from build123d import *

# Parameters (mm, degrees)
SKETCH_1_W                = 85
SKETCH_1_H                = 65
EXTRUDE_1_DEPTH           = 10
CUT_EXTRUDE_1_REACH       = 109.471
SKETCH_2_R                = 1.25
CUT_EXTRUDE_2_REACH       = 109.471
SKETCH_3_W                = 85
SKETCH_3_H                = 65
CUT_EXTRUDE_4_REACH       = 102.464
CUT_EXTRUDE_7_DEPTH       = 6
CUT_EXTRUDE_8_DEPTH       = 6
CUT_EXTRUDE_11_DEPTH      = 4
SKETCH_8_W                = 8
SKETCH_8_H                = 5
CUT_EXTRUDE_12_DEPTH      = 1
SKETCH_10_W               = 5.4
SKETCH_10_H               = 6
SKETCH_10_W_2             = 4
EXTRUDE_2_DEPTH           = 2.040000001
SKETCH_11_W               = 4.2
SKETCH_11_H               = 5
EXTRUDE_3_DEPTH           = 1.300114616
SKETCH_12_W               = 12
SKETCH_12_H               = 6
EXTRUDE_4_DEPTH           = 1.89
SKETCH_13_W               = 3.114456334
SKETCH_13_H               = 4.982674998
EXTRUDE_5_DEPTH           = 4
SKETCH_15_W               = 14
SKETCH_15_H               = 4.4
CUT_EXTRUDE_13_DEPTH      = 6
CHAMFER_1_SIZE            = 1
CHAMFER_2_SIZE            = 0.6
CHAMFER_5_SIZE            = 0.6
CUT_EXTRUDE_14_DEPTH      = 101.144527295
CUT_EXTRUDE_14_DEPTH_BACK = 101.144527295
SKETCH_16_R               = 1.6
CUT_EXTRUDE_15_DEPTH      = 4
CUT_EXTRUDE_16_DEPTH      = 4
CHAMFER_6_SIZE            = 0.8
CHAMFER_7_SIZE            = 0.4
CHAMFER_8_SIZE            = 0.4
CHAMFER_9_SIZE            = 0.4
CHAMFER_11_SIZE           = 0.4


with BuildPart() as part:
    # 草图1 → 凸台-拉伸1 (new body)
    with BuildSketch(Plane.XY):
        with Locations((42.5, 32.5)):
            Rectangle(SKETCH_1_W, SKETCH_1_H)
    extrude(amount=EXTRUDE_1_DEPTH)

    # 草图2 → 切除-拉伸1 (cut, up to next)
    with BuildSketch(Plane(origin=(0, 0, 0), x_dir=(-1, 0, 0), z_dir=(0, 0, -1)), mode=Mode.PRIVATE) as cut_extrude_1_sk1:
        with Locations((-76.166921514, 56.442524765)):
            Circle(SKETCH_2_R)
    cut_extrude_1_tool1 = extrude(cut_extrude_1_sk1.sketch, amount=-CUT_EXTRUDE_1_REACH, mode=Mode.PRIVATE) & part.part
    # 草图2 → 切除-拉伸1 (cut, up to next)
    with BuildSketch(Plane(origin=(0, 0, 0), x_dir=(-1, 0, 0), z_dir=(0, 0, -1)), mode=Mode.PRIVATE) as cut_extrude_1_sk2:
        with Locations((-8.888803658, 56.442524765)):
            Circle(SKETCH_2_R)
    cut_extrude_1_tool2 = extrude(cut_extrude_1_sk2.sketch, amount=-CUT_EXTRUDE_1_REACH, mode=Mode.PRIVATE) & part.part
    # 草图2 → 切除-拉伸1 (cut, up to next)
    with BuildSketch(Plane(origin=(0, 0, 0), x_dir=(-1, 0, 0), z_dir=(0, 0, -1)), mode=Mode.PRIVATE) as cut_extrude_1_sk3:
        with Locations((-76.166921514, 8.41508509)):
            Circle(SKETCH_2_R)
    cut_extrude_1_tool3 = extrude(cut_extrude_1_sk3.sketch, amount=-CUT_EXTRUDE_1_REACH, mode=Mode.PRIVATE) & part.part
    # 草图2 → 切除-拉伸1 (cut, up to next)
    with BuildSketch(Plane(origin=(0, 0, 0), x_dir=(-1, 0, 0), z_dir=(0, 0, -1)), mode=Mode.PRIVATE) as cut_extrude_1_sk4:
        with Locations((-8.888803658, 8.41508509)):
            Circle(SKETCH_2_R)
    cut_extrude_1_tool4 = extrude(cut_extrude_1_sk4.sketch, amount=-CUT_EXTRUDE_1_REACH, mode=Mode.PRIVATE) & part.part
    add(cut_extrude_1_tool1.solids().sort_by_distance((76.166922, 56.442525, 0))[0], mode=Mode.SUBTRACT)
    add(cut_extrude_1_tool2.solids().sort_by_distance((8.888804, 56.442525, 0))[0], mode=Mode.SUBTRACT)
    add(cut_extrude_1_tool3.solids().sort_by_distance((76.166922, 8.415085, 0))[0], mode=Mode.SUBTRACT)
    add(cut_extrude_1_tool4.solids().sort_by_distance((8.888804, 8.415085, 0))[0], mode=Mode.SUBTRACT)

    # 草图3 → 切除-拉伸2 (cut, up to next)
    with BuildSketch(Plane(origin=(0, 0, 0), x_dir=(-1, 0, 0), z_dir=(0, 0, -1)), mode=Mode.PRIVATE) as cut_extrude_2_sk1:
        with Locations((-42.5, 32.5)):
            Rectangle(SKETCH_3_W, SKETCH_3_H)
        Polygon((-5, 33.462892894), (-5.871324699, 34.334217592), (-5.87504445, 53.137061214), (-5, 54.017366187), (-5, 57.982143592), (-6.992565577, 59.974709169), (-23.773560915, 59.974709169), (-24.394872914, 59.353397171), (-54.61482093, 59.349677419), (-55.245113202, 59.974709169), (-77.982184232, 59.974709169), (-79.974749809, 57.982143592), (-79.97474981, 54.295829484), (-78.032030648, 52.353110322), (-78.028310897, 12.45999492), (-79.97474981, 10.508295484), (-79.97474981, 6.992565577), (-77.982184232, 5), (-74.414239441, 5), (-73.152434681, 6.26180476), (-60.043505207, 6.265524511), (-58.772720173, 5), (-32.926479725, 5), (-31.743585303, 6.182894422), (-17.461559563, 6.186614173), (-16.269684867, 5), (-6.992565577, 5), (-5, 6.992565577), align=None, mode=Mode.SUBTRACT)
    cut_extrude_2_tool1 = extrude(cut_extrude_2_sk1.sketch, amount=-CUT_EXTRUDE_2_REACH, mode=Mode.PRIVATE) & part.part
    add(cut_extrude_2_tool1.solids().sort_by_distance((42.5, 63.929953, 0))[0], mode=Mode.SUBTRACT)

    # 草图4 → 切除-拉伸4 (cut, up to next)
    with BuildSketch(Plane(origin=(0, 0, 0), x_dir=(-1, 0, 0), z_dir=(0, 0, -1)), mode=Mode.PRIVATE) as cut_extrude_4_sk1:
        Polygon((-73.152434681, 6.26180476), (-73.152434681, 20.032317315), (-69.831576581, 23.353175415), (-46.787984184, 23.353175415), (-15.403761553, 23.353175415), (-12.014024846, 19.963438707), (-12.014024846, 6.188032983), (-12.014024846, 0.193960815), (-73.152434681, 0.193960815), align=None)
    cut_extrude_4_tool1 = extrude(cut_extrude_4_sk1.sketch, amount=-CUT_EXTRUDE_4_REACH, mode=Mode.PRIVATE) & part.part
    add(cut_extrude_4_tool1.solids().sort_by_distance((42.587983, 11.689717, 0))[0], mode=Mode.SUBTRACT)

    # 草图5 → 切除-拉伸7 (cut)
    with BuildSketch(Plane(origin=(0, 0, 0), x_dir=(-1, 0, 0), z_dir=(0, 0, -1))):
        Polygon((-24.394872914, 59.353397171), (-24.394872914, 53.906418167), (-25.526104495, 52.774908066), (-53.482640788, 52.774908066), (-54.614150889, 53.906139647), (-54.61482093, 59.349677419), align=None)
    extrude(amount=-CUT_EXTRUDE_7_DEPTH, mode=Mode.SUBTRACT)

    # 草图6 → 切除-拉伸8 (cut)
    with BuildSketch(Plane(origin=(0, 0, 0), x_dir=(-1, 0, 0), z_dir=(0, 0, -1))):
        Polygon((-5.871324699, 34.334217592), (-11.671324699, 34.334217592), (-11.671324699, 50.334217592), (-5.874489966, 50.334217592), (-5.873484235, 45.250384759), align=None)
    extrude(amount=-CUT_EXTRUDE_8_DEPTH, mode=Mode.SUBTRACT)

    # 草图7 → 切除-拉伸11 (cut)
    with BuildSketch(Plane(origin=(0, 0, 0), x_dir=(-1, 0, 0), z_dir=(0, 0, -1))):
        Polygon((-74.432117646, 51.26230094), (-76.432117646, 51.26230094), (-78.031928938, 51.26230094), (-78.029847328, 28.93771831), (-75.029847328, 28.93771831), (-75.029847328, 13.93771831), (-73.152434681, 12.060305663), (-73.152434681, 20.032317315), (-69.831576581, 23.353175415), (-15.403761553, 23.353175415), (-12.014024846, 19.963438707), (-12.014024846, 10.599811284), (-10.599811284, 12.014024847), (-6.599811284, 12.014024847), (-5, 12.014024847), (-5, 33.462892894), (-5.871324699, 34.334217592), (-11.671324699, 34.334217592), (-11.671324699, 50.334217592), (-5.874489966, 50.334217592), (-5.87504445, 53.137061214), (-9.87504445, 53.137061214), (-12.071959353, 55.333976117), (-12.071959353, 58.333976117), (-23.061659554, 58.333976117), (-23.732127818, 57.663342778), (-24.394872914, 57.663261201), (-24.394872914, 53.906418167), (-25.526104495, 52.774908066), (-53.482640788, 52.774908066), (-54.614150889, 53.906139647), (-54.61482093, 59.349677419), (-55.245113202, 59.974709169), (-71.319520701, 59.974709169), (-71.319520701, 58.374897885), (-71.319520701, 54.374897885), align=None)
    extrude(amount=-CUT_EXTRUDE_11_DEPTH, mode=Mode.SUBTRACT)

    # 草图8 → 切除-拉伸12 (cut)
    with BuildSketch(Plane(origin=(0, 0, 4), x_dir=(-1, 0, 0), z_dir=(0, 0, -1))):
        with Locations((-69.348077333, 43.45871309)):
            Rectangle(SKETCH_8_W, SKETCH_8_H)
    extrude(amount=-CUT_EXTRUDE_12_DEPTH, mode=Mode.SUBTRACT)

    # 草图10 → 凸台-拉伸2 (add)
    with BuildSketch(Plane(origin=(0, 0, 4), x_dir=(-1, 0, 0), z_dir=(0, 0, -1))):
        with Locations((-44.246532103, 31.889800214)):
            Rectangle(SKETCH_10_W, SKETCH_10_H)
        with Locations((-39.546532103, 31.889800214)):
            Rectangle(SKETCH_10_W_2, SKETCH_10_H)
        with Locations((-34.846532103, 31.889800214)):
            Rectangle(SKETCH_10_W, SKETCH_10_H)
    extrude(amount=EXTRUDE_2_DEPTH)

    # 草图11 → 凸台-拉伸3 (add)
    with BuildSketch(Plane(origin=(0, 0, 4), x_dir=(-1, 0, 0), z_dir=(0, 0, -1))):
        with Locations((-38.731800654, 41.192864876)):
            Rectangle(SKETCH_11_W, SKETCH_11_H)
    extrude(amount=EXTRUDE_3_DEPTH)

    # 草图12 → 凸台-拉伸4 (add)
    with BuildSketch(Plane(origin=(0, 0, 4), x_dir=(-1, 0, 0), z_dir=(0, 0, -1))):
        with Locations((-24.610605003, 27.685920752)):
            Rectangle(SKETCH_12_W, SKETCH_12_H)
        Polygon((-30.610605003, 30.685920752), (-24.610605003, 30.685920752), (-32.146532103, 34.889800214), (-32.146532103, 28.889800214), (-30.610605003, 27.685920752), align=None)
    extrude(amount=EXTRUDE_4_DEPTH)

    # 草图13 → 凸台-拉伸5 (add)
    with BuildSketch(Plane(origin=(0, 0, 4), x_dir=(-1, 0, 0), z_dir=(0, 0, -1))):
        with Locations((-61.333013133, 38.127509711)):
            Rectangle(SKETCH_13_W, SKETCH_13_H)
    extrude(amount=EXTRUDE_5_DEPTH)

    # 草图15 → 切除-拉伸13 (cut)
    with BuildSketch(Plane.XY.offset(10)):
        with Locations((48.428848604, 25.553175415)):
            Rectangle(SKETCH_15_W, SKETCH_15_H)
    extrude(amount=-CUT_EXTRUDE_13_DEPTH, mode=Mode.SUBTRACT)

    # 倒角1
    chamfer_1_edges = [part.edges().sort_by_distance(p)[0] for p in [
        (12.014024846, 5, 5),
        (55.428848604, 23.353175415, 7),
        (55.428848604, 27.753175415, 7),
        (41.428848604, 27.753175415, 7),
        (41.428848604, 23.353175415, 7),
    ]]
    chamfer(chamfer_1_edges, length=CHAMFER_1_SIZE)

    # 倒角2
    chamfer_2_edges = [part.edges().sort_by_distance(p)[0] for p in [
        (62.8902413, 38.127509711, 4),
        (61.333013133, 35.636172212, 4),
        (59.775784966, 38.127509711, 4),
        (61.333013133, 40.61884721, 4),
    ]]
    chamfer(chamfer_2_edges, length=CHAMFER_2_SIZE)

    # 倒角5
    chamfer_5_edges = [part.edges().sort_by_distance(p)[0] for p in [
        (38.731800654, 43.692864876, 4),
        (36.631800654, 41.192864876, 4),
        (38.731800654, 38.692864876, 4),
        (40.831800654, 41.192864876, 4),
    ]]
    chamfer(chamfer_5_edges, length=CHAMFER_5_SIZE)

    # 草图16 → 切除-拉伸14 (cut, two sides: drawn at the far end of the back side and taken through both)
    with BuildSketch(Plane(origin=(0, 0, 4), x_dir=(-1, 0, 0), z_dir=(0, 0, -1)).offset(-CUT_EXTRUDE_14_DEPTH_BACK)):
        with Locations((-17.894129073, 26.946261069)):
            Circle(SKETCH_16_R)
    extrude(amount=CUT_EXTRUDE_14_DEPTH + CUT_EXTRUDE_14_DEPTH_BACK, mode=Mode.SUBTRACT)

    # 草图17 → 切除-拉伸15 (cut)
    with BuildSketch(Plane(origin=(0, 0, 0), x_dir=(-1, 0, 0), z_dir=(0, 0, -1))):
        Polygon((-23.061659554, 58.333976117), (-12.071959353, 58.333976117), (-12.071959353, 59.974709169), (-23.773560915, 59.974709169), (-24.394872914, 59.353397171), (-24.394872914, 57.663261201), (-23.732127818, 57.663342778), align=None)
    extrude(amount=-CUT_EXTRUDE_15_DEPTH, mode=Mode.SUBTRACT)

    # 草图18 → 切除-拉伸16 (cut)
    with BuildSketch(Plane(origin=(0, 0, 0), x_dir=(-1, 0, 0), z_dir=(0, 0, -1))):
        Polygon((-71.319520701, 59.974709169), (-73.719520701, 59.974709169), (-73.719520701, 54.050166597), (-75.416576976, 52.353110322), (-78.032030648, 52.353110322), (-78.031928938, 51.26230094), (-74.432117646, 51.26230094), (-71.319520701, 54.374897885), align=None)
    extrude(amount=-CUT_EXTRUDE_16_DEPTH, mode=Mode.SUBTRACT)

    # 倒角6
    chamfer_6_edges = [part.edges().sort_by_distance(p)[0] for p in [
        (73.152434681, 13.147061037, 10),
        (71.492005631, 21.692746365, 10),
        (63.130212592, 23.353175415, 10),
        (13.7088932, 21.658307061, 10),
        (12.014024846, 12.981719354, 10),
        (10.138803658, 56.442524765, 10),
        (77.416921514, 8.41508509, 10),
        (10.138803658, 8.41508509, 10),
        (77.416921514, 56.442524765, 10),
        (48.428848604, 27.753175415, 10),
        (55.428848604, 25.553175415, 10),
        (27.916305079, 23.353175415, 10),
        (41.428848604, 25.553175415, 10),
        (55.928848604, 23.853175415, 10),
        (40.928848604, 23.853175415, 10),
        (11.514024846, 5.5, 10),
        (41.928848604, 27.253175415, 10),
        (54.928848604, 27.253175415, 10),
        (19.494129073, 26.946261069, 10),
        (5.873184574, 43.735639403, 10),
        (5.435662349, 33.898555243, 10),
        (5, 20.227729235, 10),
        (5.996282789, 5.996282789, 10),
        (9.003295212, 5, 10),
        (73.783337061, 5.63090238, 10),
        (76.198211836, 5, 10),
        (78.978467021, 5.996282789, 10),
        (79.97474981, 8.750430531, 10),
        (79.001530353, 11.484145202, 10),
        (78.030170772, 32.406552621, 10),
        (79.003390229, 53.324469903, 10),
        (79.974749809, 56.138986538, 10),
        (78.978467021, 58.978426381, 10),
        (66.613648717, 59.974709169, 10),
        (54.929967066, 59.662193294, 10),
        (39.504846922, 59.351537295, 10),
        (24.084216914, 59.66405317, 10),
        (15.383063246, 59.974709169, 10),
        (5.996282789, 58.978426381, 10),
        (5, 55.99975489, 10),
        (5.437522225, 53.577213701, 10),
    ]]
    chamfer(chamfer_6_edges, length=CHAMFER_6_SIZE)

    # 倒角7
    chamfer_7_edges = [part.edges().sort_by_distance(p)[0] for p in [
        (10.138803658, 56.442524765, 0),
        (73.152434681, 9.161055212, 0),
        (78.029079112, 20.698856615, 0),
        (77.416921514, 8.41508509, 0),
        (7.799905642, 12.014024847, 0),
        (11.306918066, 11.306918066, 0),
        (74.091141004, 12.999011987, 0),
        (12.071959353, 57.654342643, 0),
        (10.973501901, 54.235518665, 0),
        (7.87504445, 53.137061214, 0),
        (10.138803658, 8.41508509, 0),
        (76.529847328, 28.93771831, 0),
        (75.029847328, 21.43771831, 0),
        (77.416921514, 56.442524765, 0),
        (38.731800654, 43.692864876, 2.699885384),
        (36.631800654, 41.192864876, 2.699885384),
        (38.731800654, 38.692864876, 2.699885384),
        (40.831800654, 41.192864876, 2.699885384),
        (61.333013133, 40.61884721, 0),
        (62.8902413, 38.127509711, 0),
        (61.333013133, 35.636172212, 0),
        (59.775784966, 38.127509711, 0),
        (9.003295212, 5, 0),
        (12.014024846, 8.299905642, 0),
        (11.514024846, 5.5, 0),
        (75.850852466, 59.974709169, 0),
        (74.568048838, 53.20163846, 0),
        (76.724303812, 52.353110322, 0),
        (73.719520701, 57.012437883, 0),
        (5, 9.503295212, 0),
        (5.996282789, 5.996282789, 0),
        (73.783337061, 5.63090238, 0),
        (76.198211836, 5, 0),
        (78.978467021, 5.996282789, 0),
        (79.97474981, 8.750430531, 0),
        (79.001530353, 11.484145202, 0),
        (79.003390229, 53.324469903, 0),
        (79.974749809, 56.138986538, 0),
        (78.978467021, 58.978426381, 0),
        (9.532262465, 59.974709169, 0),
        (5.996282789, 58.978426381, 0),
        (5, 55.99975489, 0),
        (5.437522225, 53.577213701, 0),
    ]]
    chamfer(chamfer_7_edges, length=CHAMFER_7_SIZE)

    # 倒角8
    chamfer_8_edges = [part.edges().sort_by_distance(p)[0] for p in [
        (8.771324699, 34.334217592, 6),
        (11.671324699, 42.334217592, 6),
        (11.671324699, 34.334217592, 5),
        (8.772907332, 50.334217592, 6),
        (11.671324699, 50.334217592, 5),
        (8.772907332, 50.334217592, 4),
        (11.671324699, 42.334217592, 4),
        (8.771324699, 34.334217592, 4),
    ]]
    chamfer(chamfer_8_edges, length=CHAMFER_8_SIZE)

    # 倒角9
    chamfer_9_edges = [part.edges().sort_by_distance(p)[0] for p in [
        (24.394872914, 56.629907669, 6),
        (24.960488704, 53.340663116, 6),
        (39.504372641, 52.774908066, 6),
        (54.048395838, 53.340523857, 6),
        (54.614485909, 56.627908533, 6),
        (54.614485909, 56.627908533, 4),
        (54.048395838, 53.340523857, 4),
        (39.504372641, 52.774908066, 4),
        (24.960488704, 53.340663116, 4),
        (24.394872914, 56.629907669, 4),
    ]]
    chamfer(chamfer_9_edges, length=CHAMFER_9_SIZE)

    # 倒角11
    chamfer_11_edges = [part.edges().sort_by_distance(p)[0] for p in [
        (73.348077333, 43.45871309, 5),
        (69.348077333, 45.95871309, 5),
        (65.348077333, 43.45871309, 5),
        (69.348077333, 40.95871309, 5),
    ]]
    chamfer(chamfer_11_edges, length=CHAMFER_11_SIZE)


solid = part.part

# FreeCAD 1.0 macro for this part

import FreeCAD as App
import Part
import Sketcher
Q = App.Units.Quantity


def edges_at(feature, points):
    """Names of the edges that pass closest to the given points."""
    edges = feature.Shape.Edges
    near = lambda p: min(range(len(edges)), key=lambda i: edges[i].distToShape(Part.Vertex(*p))[0])
    return sorted({f"Edge{near(p) + 1}" for p in points})


def add_polygon(sketch, points):
    """Adds a closed chain of lines whose ends are joined by coincident constraints."""
    first, n = sketch.GeometryCount, len(points)
    for a, b in zip(points, points[1:] + points[:1]):
        sketch.addGeometry(Part.LineSegment(App.Vector(*a, 0), App.Vector(*b, 0)), False)
    for i in range(n):
        sketch.addConstraint(Sketcher.Constraint("Coincident", first + i, 2, first + (i + 1) % n, 1))

doc = App.newDocument("Part")
body = doc.addObject("PartDesign::Body", "Body")

# Sketch on XY plane
sketch1 = body.newObject("Sketcher::SketchObject", "Sketch")
sketch1.AttachmentSupport = (doc.getObject("XY_Plane"), [""])
sketch1.MapMode = "FlatFace"
add_polygon(sketch1, [(0, 65), (0, 0), (85, 0), (85, 65)])  # lines 0-3
sketch1.addConstraint(Sketcher.Constraint("Vertical", 0))
sketch1.addConstraint(Sketcher.Constraint("Horizontal", 1))
sketch1.addConstraint(Sketcher.Constraint("Vertical", 2))
sketch1.addConstraint(Sketcher.Constraint("Horizontal", 3))
sketch1.addConstraint(Sketcher.Constraint("Coincident", 0, 2, -1, 1))
sketch1.addConstraint(Sketcher.Constraint("DistanceX", 1, 1, 1, 2, Q("85 mm")))
sketch1.addConstraint(Sketcher.Constraint("DistanceY", 0, 2, 0, 1, Q("65 mm")))
pad1 = body.newObject("PartDesign::Pad", "Pad")
pad1.Profile = sketch1
pad1.Length = 10

# Sketch on XY plane
sketch2 = body.newObject("Sketcher::SketchObject", "Sketch001")
sketch2.AttachmentSupport = (doc.getObject("XY_Plane"), [""])
sketch2.MapMode = "FlatFace"
sketch2.addGeometry(Part.Circle(App.Vector(76.2, 56.4, 0), App.Vector(0, 0, 1), 1.2), False)
sketch2.addConstraint(Sketcher.Constraint("Diameter", 0, Q("2.5 mm")))
sketch2.addConstraint(Sketcher.Constraint("DistanceX", -1, 1, 0, 3, Q("76.166922 mm")))
sketch2.addConstraint(Sketcher.Constraint("DistanceY", -1, 1, 0, 3, Q("56.442525 mm")))
pocket1 = body.newObject("PartDesign::Pocket", "Pocket")
pocket1.Profile = sketch2
pocket1.Type = "UpToFirst"
pocket1.Reversed = True

# Sketch on XY plane
sketch3 = body.newObject("Sketcher::SketchObject", "Sketch002")
sketch3.AttachmentSupport = (doc.getObject("XY_Plane"), [""])
sketch3.MapMode = "FlatFace"
sketch3.addGeometry(Part.Circle(App.Vector(8.9, 56.4, 0), App.Vector(0, 0, 1), 1.2), False)
sketch3.addConstraint(Sketcher.Constraint("Diameter", 0, Q("2.5 mm")))
sketch3.addConstraint(Sketcher.Constraint("DistanceX", -1, 1, 0, 3, Q("8.888804 mm")))
sketch3.addConstraint(Sketcher.Constraint("DistanceY", -1, 1, 0, 3, Q("56.442525 mm")))
pocket2 = body.newObject("PartDesign::Pocket", "Pocket001")
pocket2.Profile = sketch3
pocket2.Type = "UpToFirst"
pocket2.Reversed = True

# Sketch on XY plane
sketch4 = body.newObject("Sketcher::SketchObject", "Sketch003")
sketch4.AttachmentSupport = (doc.getObject("XY_Plane"), [""])
sketch4.MapMode = "FlatFace"
sketch4.addGeometry(Part.Circle(App.Vector(76.2, 8.4, 0), App.Vector(0, 0, 1), 1.2), False)
sketch4.addConstraint(Sketcher.Constraint("Diameter", 0, Q("2.5 mm")))
sketch4.addConstraint(Sketcher.Constraint("DistanceX", -1, 1, 0, 3, Q("76.166922 mm")))
sketch4.addConstraint(Sketcher.Constraint("DistanceY", -1, 1, 0, 3, Q("8.415085 mm")))
pocket3 = body.newObject("PartDesign::Pocket", "Pocket002")
pocket3.Profile = sketch4
pocket3.Type = "UpToFirst"
pocket3.Reversed = True

# Sketch on XY plane
sketch5 = body.newObject("Sketcher::SketchObject", "Sketch004")
sketch5.AttachmentSupport = (doc.getObject("XY_Plane"), [""])
sketch5.MapMode = "FlatFace"
sketch5.addGeometry(Part.Circle(App.Vector(8.9, 8.4, 0), App.Vector(0, 0, 1), 1.2), False)
sketch5.addConstraint(Sketcher.Constraint("Diameter", 0, Q("2.5 mm")))
sketch5.addConstraint(Sketcher.Constraint("DistanceX", -1, 1, 0, 3, Q("8.888804 mm")))
sketch5.addConstraint(Sketcher.Constraint("DistanceY", -1, 1, 0, 3, Q("8.415085 mm")))
pocket4 = body.newObject("PartDesign::Pocket", "Pocket003")
pocket4.Profile = sketch5
pocket4.Type = "UpToFirst"
pocket4.Reversed = True

# Sketch on XY plane
sketch6 = body.newObject("Sketcher::SketchObject", "Sketch005")
sketch6.AttachmentSupport = (doc.getObject("XY_Plane"), [""])
sketch6.MapMode = "FlatFace"
add_polygon(sketch6, [(85, 65), (85, 0), (0, 0), (0, 65)])  # lines 0-3
add_polygon(sketch6, [(5.9, 34.3), (5, 33.5), (5, 7), (7, 5), (16.3, 5), (17.5, 6.2), (31.7, 6.2), (32.9, 5), (58.8, 5), (60, 6.3), (73.2, 6.3), (74.4, 5), (78, 5), (80, 7), (80, 10.5), (78, 12.5), (78, 52.4), (80, 54.3), (80, 58), (78, 60), (55.2, 60), (54.6, 59.3), (24.4, 59.4), (23.8, 60), (7, 60), (5, 58), (5, 54), (5.9, 53.1)])  # lines 4-31
sketch6.addConstraint(Sketcher.Constraint("Vertical", 0))
sketch6.addConstraint(Sketcher.Constraint("Horizontal", 1))
sketch6.addConstraint(Sketcher.Constraint("Vertical", 2))
sketch6.addConstraint(Sketcher.Constraint("Horizontal", 3))
sketch6.addConstraint(Sketcher.Constraint("Vertical", 5))
sketch6.addConstraint(Sketcher.Constraint("Horizontal", 7))
sketch6.addConstraint(Sketcher.Constraint("Horizontal", 11))
sketch6.addConstraint(Sketcher.Constraint("Horizontal", 15))
sketch6.addConstraint(Sketcher.Constraint("Vertical", 17))
sketch6.addConstraint(Sketcher.Constraint("Vertical", 21))
sketch6.addConstraint(Sketcher.Constraint("Horizontal", 23))
sketch6.addConstraint(Sketcher.Constraint("Horizontal", 27))
sketch6.addConstraint(Sketcher.Constraint("Vertical", 29))
sketch6.addConstraint(Sketcher.Constraint("Coincident", 1, 2, -1, 1))
sketch6.addConstraint(Sketcher.Constraint("Perpendicular", 4, 6))
sketch6.addConstraint(Sketcher.Constraint("Parallel", 6, 10))
sketch6.addConstraint(Sketcher.Constraint("Parallel", 10, 14))
sketch6.addConstraint(Sketcher.Constraint("Perpendicular", 14, 16))
sketch6.addConstraint(Sketcher.Constraint("Parallel", 16, 20))
sketch6.addConstraint(Sketcher.Constraint("Perpendicular", 20, 22))
sketch6.addConstraint(Sketcher.Constraint("Parallel", 22, 26))
sketch6.addConstraint(Sketcher.Constraint("Perpendicular", 26, 28))
sketch6.addConstraint(Sketcher.Constraint("Horizontal", 7, 2, 10, 2))
sketch6.addConstraint(Sketcher.Constraint("Horizontal", 11, 2, 14, 2))
sketch6.addConstraint(Sketcher.Constraint("Horizontal", 5, 2, 16, 2))
sketch6.addConstraint(Sketcher.Constraint("Horizontal", 23, 2, 26, 2))
sketch6.addConstraint(Sketcher.Constraint("Horizontal", 21, 2, 28, 2))
sketch6.addConstraint(Sketcher.Constraint("Vertical", 17, 2, 20, 2))
sketch6.addConstraint(Sketcher.Constraint("Vertical", 15, 2, 22, 2))
sketch6.addConstraint(Sketcher.Constraint("Vertical", 6, 2, 27, 2))
sketch6.addConstraint(Sketcher.Constraint("Vertical", 5, 2, 28, 2))
sketch6.addConstraint(Sketcher.Constraint("DistanceX", 1, 2, 1, 1, Q("85 mm")))
sketch6.addConstraint(Sketcher.Constraint("DistanceY", 0, 2, 0, 1, Q("65 mm")))
sketch6.addConstraint(Sketcher.Constraint("DistanceX", -1, 1, 4, 2, Q("5 mm")))
sketch6.addConstraint(Sketcher.Constraint("DistanceY", -1, 1, 6, 2, Q("5 mm")))
sketch6.addConstraint(Sketcher.Constraint("DistanceX", 7, 1, 7, 2, Q("9.277119 mm")))
sketch6.addConstraint(Sketcher.Constraint("DistanceX", 11, 1, 11, 2, Q("25.84624 mm")))
sketch6.addConstraint(Sketcher.Constraint("DistanceX", 23, 2, 23, 1, Q("22.737071 mm")))
sketch6.addConstraint(Sketcher.Constraint("DistanceY", 17, 1, 17, 2, Q("3.51573 mm")))
sketch6.addConstraint(Sketcher.Constraint("DistanceX", 7, 2, 9, 2, Q("15.4739 mm")))
sketch6.addConstraint(Sketcher.Constraint("DistanceY", 17, 2, 18, 2, Q("1.951699 mm")))
sketch6.addConstraint(Sketcher.Constraint("DistanceY", 19, 2, 22, 2, Q("7.621599 mm")))
sketch6.addConstraint(Sketcher.Constraint("Distance", 4, Q("1.232239 mm")))
sketch6.addConstraint(Sketcher.Constraint("Distance", 8, Q("1.68185 mm")))
sketch6.addConstraint(Sketcher.Constraint("Distance", 13, Q("13.10893 mm")))
sketch6.addConstraint(Sketcher.Constraint("Distance", 14, Q("1.784461 mm")))
sketch6.addConstraint(Sketcher.Constraint("Distance", 20, Q("2.74742 mm")))
sketch6.addConstraint(Sketcher.Constraint("Distance", 25, Q("30.219948 mm")))
sketch6.addConstraint(Sketcher.Constraint("DistanceX", 15, 1, 15, 2, Q("3.567945 mm")))
sketch6.addConstraint(Sketcher.Constraint("DistanceX", 27, 2, 27, 1, Q("16.780995 mm")))
sketch6.addConstraint(Sketcher.Constraint("DistanceY", 5, 2, 5, 1, Q("26.470327 mm")))
sketch6.addConstraint(Sketcher.Constraint("DistanceY", 21, 1, 21, 2, Q("3.686314 mm")))
sketch6.addConstraint(Sketcher.Constraint("DistanceY", 29, 2, 29, 1, Q("3.964777 mm")))
sketch6.addConstraint(Sketcher.Constraint("DistanceX", -1, 1, 8, 2, Q("17.46156 mm")))
sketch6.addConstraint(Sketcher.Constraint("DistanceX", -1, 1, 10, 2, Q("32.92648 mm")))
sketch6.addConstraint(Sketcher.Constraint("DistanceX", -1, 1, 14, 2, Q("74.414239 mm")))
sketch6.addConstraint(Sketcher.Constraint("DistanceX", -1, 1, 18, 2, Q("78.028311 mm")))
sketch6.addConstraint(Sketcher.Constraint("DistanceY", -1, 1, 19, 2, Q("52.35311 mm")))
sketch6.addConstraint(Sketcher.Constraint("DistanceX", -1, 1, 24, 2, Q("54.614821 mm")))
sketch6.addConstraint(Sketcher.Constraint("DistanceY", -1, 1, 30, 2, Q("53.137061 mm")))
sketch6.addConstraint(Sketcher.Constraint("DistanceY", 9, 2, 12, 2, Q("0.08263 mm")))
sketch6.addConstraint(Sketcher.Constraint("DistanceY", 24, 2, 23, 2, Q("0.625032 mm")))
sketch6.addConstraint(Sketcher.Constraint("DistanceX", 30, 2, 27, 2, Q("1.117521 mm")))
pocket5 = body.newObject("PartDesign::Pocket", "Pocket004")
pocket5.Profile = sketch6
pocket5.Type = "UpToFirst"
pocket5.Reversed = True

# Sketch on XY plane
sketch7 = body.newObject("Sketcher::SketchObject", "Sketch006")
sketch7.AttachmentSupport = (doc.getObject("XY_Plane"), [""])
sketch7.MapMode = "FlatFace"
add_polygon(sketch7, [(73.2, 20), (73.2, 0.2), (12, 0.2), (12, 20), (15.4, 23.4), (69.8, 23.4)])  # lines 0-5
sketch7.addConstraint(Sketcher.Constraint("Vertical", 0))
sketch7.addConstraint(Sketcher.Constraint("Horizontal", 1))
sketch7.addConstraint(Sketcher.Constraint("Vertical", 2))
sketch7.addConstraint(Sketcher.Constraint("Horizontal", 4))
sketch7.addConstraint(Sketcher.Constraint("Perpendicular", 3, 5))
sketch7.addConstraint(Sketcher.Constraint("Angle", 3, Q("45 deg")))
sketch7.addConstraint(Sketcher.Constraint("DistanceX", 1, 2, 1, 1, Q("61.13841 mm")))
sketch7.addConstraint(Sketcher.Constraint("Distance", 3, Q("4.793812 mm")))
sketch7.addConstraint(Sketcher.Constraint("DistanceX", 4, 1, 4, 2, Q("54.427815 mm")))
sketch7.addConstraint(Sketcher.Constraint("DistanceY", 0, 2, 0, 1, Q("19.838356 mm")))
sketch7.addConstraint(Sketcher.Constraint("DistanceY", -1, 1, 0, 2, Q("0.193961 mm")))
sketch7.addConstraint(Sketcher.Constraint("DistanceX", -1, 1, 3, 2, Q("15.403762 mm")))
pocket6 = body.newObject("PartDesign::Pocket", "Pocket005")
pocket6.Profile = sketch7
pocket6.Type = "UpToFirst"
pocket6.Reversed = True

# Sketch on XY plane
sketch8 = body.newObject("Sketcher::SketchObject", "Sketch007")
sketch8.AttachmentSupport = (doc.getObject("XY_Plane"), [""])
sketch8.MapMode = "FlatFace"
add_polygon(sketch8, [(24.4, 53.9), (24.4, 59.4), (54.6, 59.3), (54.6, 53.9), (53.5, 52.8), (25.5, 52.8)])  # lines 0-5
sketch8.addConstraint(Sketcher.Constraint("Vertical", 0))
sketch8.addConstraint(Sketcher.Constraint("Horizontal", 4))
sketch8.addConstraint(Sketcher.Constraint("Perpendicular", 1, 2))
sketch8.addConstraint(Sketcher.Constraint("Perpendicular", 3, 5))
sketch8.addConstraint(Sketcher.Constraint("Equal", 3, 5))
sketch8.addConstraint(Sketcher.Constraint("Distance", 3, Q("1.6 mm")))
sketch8.addConstraint(Sketcher.Constraint("DistanceY", 0, 1, 0, 2, Q("5.446979 mm")))
sketch8.addConstraint(Sketcher.Constraint("Distance", 1, Q("30.219948 mm")))
sketch8.addConstraint(Sketcher.Constraint("DistanceX", 4, 2, 4, 1, Q("27.956536 mm")))
sketch8.addConstraint(Sketcher.Constraint("DistanceX", -1, 1, 1, 2, Q("54.614821 mm")))
sketch8.addConstraint(Sketcher.Constraint("DistanceY", -1, 1, 2, 2, Q("53.90614 mm")))
sketch8.addConstraint(Sketcher.Constraint("DistanceX", -1, 1, 3, 2, Q("53.482641 mm")))
pocket7 = body.newObject("PartDesign::Pocket", "Pocket006")
pocket7.Profile = sketch8
pocket7.Length = 6
pocket7.Reversed = True

# Sketch on XY plane
sketch9 = body.newObject("Sketcher::SketchObject", "Sketch008")
sketch9.AttachmentSupport = (doc.getObject("XY_Plane"), [""])
sketch9.MapMode = "FlatFace"
add_polygon(sketch9, [(12, 34), (6, 34), (6, 45), (6, 50), (12, 50)])  # lines 0-4
sketch9.addConstraint(Sketcher.Constraint("Horizontal", 0))
sketch9.addConstraint(Sketcher.Constraint("Horizontal", 3))
sketch9.addConstraint(Sketcher.Constraint("Vertical", 4))
sketch9.addConstraint(Sketcher.Constraint("Parallel", 1, 2))
sketch9.addConstraint(Sketcher.Constraint("DistanceY", 4, 2, 4, 1, Q("16 mm")))
sketch9.addConstraint(Sketcher.Constraint("DistanceX", 0, 2, 0, 1, Q("5.8 mm")))
sketch9.addConstraint(Sketcher.Constraint("DistanceX", 3, 1, 3, 2, Q("5.796835 mm")))
sketch9.addConstraint(Sketcher.Constraint("DistanceX", -1, 1, 2, 2, Q("5.87449 mm")))
sketch9.addConstraint(Sketcher.Constraint("Distance", 1, Q("10.916167 mm")))
sketch9.addConstraint(Sketcher.Constraint("DistanceY", -1, 1, 0, 2, Q("34.334218 mm")))
pocket8 = body.newObject("PartDesign::Pocket", "Pocket007")
pocket8.Profile = sketch9
pocket8.Length = 6
pocket8.Reversed = True

# Sketch on XY plane
sketch10 = body.newObject("Sketcher::SketchObject", "Sketch009")
sketch10.AttachmentSupport = (doc.getObject("XY_Plane"), [""])
sketch10.MapMode = "FlatFace"
add_polygon(sketch10, [(74.4, 51.3), (78, 51.3), (78, 28.9), (75, 28.9), (75, 13.9), (73.2, 12.1), (73.2, 20), (69.8, 23.4), (15.4, 23.4), (12, 20), (12, 10.6), (10.6, 12), (5, 12), (5, 33.5), (5.9, 34.3), (11.7, 34.3), (11.7, 50.3), (5.9, 50.3), (5.9, 53.1), (9.9, 53.1), (12.1, 55.3), (12.1, 58.3), (23.1, 58.3), (23.7, 57.7), (24.4, 57.7), (24.4, 53.9), (25.5, 52.8), (53.5, 52.8), (54.6, 53.9), (54.6, 59.3), (55.2, 60), (71.3, 60), (71.3, 54.4)])  # lines 0-32
sketch10.addConstraint(Sketcher.Constraint("Horizontal", 0))
sketch10.addConstraint(Sketcher.Constraint("Horizontal", 2))
sketch10.addConstraint(Sketcher.Constraint("Vertical", 3))
sketch10.addConstraint(Sketcher.Constraint("Vertical", 5))
sketch10.addConstraint(Sketcher.Constraint("Horizontal", 7))
sketch10.addConstraint(Sketcher.Constraint("Vertical", 9))
sketch10.addConstraint(Sketcher.Constraint("Horizontal", 11))
sketch10.addConstraint(Sketcher.Constraint("Vertical", 12))
sketch10.addConstraint(Sketcher.Constraint("Horizontal", 14))
sketch10.addConstraint(Sketcher.Constraint("Vertical", 15))
sketch10.addConstraint(Sketcher.Constraint("Horizontal", 16))
sketch10.addConstraint(Sketcher.Constraint("Horizontal", 18))
sketch10.addConstraint(Sketcher.Constraint("Vertical", 20))
sketch10.addConstraint(Sketcher.Constraint("Horizontal", 21))
sketch10.addConstraint(Sketcher.Constraint("Vertical", 24))
sketch10.addConstraint(Sketcher.Constraint("Horizontal", 26))
sketch10.addConstraint(Sketcher.Constraint("Horizontal", 30))
sketch10.addConstraint(Sketcher.Constraint("Vertical", 31))
sketch10.addConstraint(Sketcher.Constraint("Perpendicular", 4, 6))
sketch10.addConstraint(Sketcher.Constraint("Perpendicular", 6, 8))
sketch10.addConstraint(Sketcher.Constraint("Perpendicular", 8, 10))
sketch10.addConstraint(Sketcher.Constraint("Perpendicular", 10, 13))
sketch10.addConstraint(Sketcher.Constraint("Parallel", 13, 19))
sketch10.addConstraint(Sketcher.Constraint("Parallel", 22, 25))
sketch10.addConstraint(Sketcher.Constraint("Perpendicular", 25, 27))
sketch10.addConstraint(Sketcher.Constraint("Perpendicular", 23, 28))
sketch10.addConstraint(Sketcher.Constraint("Perpendicular", 19, 32))
sketch10.addConstraint(Sketcher.Constraint("Equal", 2, 20))
sketch10.addConstraint(Sketcher.Constraint("Equal", 11, 31))
sketch10.addConstraint(Sketcher.Constraint("Equal", 25, 27))
sketch10.addConstraint(Sketcher.Constraint("DistanceX", 2, 2, 2, 1, Q("3 mm")))
sketch10.addConstraint(Sketcher.Constraint("DistanceX", 18, 1, 18, 2, Q("4 mm")))
sketch10.addConstraint(Sketcher.Constraint("DistanceY", 3, 2, 3, 1, Q("15 mm")))
sketch10.addConstraint(Sketcher.Constraint("DistanceY", 15, 1, 15, 2, Q("16 mm")))
sketch10.addConstraint(Sketcher.Constraint("Angle", 4, Q("-135 deg")))
sketch10.addConstraint(Sketcher.Constraint("Distance", 10, Q("2 mm")))
sketch10.addConstraint(Sketcher.Constraint("DistanceX", 14, 1, 14, 2, Q("5.8 mm")))
sketch10.addConstraint(Sketcher.Constraint("DistanceX", -1, 1, 11, 2, Q("5 mm")))
sketch10.addConstraint(Sketcher.Constraint("Distance", 25, Q("1.6 mm")))
sketch10.addConstraint(Sketcher.Constraint("DistanceX", 21, 1, 21, 2, Q("10.9897 mm")))
sketch10.addConstraint(Sketcher.Constraint("DistanceX", 0, 1, 0, 2, Q("3.599811 mm")))
sketch10.addConstraint(Sketcher.Constraint("DistanceX", 11, 2, 11, 1, Q("5.599811 mm")))
sketch10.addConstraint(Sketcher.Constraint("DistanceY", 5, 1, 5, 2, Q("7.972012 mm")))
sketch10.addConstraint(Sketcher.Constraint("DistanceY", 12, 1, 12, 2, Q("21.448868 mm")))
sketch10.addConstraint(Sketcher.Constraint("DistanceY", -1, 1, 0, 2, Q("51.262301 mm")))
sketch10.addConstraint(Sketcher.Constraint("DistanceY", 3, 2, 5, 2, Q("6.094599 mm")))
sketch10.addConstraint(Sketcher.Constraint("DistanceX", 13, 2, 8, 2, Q("6.1427 mm")))
sketch10.addConstraint(Sketcher.Constraint("DistanceY", 26, 2, 29, 2, Q("7.199801 mm")))
sketch10.addConstraint(Sketcher.Constraint("DistanceX", 28, 2, 30, 2, Q("16.7047 mm")))
sketch10.addConstraint(Sketcher.Constraint("Distance", 8, Q("4.793812 mm")))
sketch10.addConstraint(Sketcher.Constraint("DistanceX", 7, 2, 7, 1, Q("54.427815 mm")))
sketch10.addConstraint(Sketcher.Constraint("DistanceX", 16, 2, 16, 1, Q("5.796835 mm")))
sketch10.addConstraint(Sketcher.Constraint("DistanceX", 26, 1, 26, 2, Q("27.956536 mm")))
sketch10.addConstraint(Sketcher.Constraint("DistanceX", 30, 1, 30, 2, Q("16.074407 mm")))
sketch10.addConstraint(Sketcher.Constraint("DistanceY", 9, 2, 9, 1, Q("9.363627 mm")))
sketch10.addConstraint(Sketcher.Constraint("DistanceY", 24, 2, 24, 1, Q("3.756843 mm")))
sketch10.addConstraint(Sketcher.Constraint("DistanceX", -1, 1, 0, 2, Q("78.031929 mm")))
sketch10.addConstraint(Sketcher.Constraint("DistanceY", -1, 1, 1, 2, Q("28.937718 mm")))
sketch10.addConstraint(Sketcher.Constraint("DistanceY", -1, 1, 8, 2, Q("19.963439 mm")))
sketch10.addConstraint(Sketcher.Constraint("DistanceY", -1, 1, 17, 2, Q("53.137061 mm")))
sketch10.addConstraint(Sketcher.Constraint("DistanceX", -1, 1, 19, 2, Q("12.071959 mm")))
sketch10.addConstraint(Sketcher.Constraint("DistanceY", -1, 1, 23, 2, Q("57.663261 mm")))
sketch10.addConstraint(Sketcher.Constraint("DistanceY", -1, 1, 25, 2, Q("52.774908 mm")))
sketch10.addConstraint(Sketcher.Constraint("DistanceX", -1, 1, 26, 2, Q("53.482641 mm")))
sketch10.addConstraint(Sketcher.Constraint("DistanceX", 17, 2, 15, 2, Q("5.79628 mm")))
sketch10.addConstraint(Sketcher.Constraint("DistanceY", 26, 2, 28, 2, Q("6.574769 mm")))
pocket9 = body.newObject("PartDesign::Pocket", "Pocket008")
pocket9.Profile = sketch10
pocket9.Length = 4
pocket9.Reversed = True

# Sketch on XY plane
sketch11 = body.newObject("Sketcher::SketchObject", "Sketch010")
sketch11.AttachmentSupport = (doc.getObject("XY_Plane"), [""])
sketch11.MapMode = "FlatFace"
sketch11.AttachmentOffset = App.Placement(App.Vector(0, 0, 4), App.Rotation())
add_polygon(sketch11, [(73, 46), (73, 41), (65, 41), (65, 46)])  # lines 0-3
sketch11.addConstraint(Sketcher.Constraint("Vertical", 0))
sketch11.addConstraint(Sketcher.Constraint("Horizontal", 1))
sketch11.addConstraint(Sketcher.Constraint("Vertical", 2))
sketch11.addConstraint(Sketcher.Constraint("Horizontal", 3))
sketch11.addConstraint(Sketcher.Constraint("DistanceX", 1, 2, 1, 1, Q("8 mm")))
sketch11.addConstraint(Sketcher.Constraint("DistanceY", 0, 2, 0, 1, Q("5 mm")))
sketch11.addConstraint(Sketcher.Constraint("DistanceX", -1, 1, 0, 2, Q("73.348077 mm")))
sketch11.addConstraint(Sketcher.Constraint("DistanceY", -1, 1, 0, 2, Q("40.958713 mm")))
pocket10 = body.newObject("PartDesign::Pocket", "Pocket009")
pocket10.Profile = sketch11
pocket10.Length = 1
pocket10.Reversed = True

# Sketch on XY plane
sketch12 = body.newObject("Sketcher::SketchObject", "Sketch011")
sketch12.AttachmentSupport = (doc.getObject("XY_Plane"), [""])
sketch12.MapMode = "FlatFace"
sketch12.AttachmentOffset = App.Placement(App.Vector(0, 0, 4), App.Rotation())
add_polygon(sketch12, [(47, 35), (47, 29), (32, 29), (32, 35)])  # lines 0-3
sketch12.addConstraint(Sketcher.Constraint("Vertical", 0))
sketch12.addConstraint(Sketcher.Constraint("Horizontal", 1))
sketch12.addConstraint(Sketcher.Constraint("Vertical", 2))
sketch12.addConstraint(Sketcher.Constraint("Horizontal", 3))
sketch12.addConstraint(Sketcher.Constraint("DistanceY", 0, 2, 0, 1, Q("6 mm")))
sketch12.addConstraint(Sketcher.Constraint("DistanceX", 1, 2, 1, 1, Q("14.8 mm")))
sketch12.addConstraint(Sketcher.Constraint("DistanceY", -1, 1, 0, 2, Q("28.8898 mm")))
sketch12.addConstraint(Sketcher.Constraint("DistanceX", -1, 1, 0, 2, Q("46.946532 mm")))
pad2 = body.newObject("PartDesign::Pad", "Pad001")
pad2.Profile = sketch12
pad2.Length = 2.04
pad2.Reversed = True

# Sketch on XY plane
sketch13 = body.newObject("Sketcher::SketchObject", "Sketch012")
sketch13.AttachmentSupport = (doc.getObject("XY_Plane"), [""])
sketch13.MapMode = "FlatFace"
sketch13.AttachmentOffset = App.Placement(App.Vector(0, 0, 4), App.Rotation())
add_polygon(sketch13, [(40.8, 43.7), (40.8, 38.7), (36.6, 38.7), (36.6, 43.7)])  # lines 0-3
sketch13.addConstraint(Sketcher.Constraint("Vertical", 0))
sketch13.addConstraint(Sketcher.Constraint("Horizontal", 1))
sketch13.addConstraint(Sketcher.Constraint("Vertical", 2))
sketch13.addConstraint(Sketcher.Constraint("Horizontal", 3))
sketch13.addConstraint(Sketcher.Constraint("DistanceY", 0, 2, 0, 1, Q("5 mm")))
sketch13.addConstraint(Sketcher.Constraint("DistanceX", 1, 2, 1, 1, Q("4.2 mm")))
sketch13.addConstraint(Sketcher.Constraint("DistanceX", -1, 1, 0, 2, Q("40.831801 mm")))
sketch13.addConstraint(Sketcher.Constraint("DistanceY", -1, 1, 0, 2, Q("38.692865 mm")))
pad3 = body.newObject("PartDesign::Pad", "Pad002")
pad3.Profile = sketch13
pad3.Length = 1.300115
pad3.Reversed = True

# Sketch on XY plane
sketch14 = body.newObject("Sketcher::SketchObject", "Sketch013")
sketch14.AttachmentSupport = (doc.getObject("XY_Plane"), [""])
sketch14.MapMode = "FlatFace"
sketch14.AttachmentOffset = App.Placement(App.Vector(0, 0, 4), App.Rotation())
add_polygon(sketch14, [(30.6, 27.7), (30.6, 24.7), (18.6, 24.7), (18.6, 30.7), (24.6, 30.7), (32.1, 34.9), (32.1, 28.9)])  # lines 0-6
sketch14.addConstraint(Sketcher.Constraint("Vertical", 0))
sketch14.addConstraint(Sketcher.Constraint("Horizontal", 1))
sketch14.addConstraint(Sketcher.Constraint("Vertical", 2))
sketch14.addConstraint(Sketcher.Constraint("Horizontal", 3))
sketch14.addConstraint(Sketcher.Constraint("Vertical", 5))
sketch14.addConstraint(Sketcher.Constraint("Equal", 3, 2))
sketch14.addConstraint(Sketcher.Constraint("Equal", 2, 5))
sketch14.addConstraint(Sketcher.Constraint("DistanceX", 1, 2, 1, 1, Q("12 mm")))
sketch14.addConstraint(Sketcher.Constraint("DistanceX", 3, 1, 3, 2, Q("6 mm")))
sketch14.addConstraint(Sketcher.Constraint("DistanceY", 0, 2, 0, 1, Q("3 mm")))
sketch14.addConstraint(Sketcher.Constraint("DistanceY", -1, 1, 4, 2, Q("34.8898 mm")))
sketch14.addConstraint(Sketcher.Constraint("Distance", 6, Q("1.951512 mm")))
sketch14.addConstraint(Sketcher.Constraint("DistanceY", -1, 1, 0, 2, Q("24.685921 mm")))
sketch14.addConstraint(Sketcher.Constraint("DistanceX", -1, 1, 0, 2, Q("30.610605 mm")))
pad4 = body.newObject("PartDesign::Pad", "Pad003")
pad4.Profile = sketch14
pad4.Length = 1.89
pad4.Reversed = True

# Sketch on XY plane
sketch15 = body.newObject("Sketcher::SketchObject", "Sketch014")
sketch15.AttachmentSupport = (doc.getObject("XY_Plane"), [""])
sketch15.MapMode = "FlatFace"
sketch15.AttachmentOffset = App.Placement(App.Vector(0, 0, 4), App.Rotation())
add_polygon(sketch15, [(62.9, 40.6), (62.9, 35.6), (59.8, 35.6), (59.8, 40.6)])  # lines 0-3
sketch15.addConstraint(Sketcher.Constraint("Vertical", 0))
sketch15.addConstraint(Sketcher.Constraint("Horizontal", 1))
sketch15.addConstraint(Sketcher.Constraint("Vertical", 2))
sketch15.addConstraint(Sketcher.Constraint("Horizontal", 3))
sketch15.addConstraint(Sketcher.Constraint("DistanceX", 1, 2, 1, 1, Q("3.114456 mm")))
sketch15.addConstraint(Sketcher.Constraint("DistanceY", 0, 2, 0, 1, Q("4.982675 mm")))
sketch15.addConstraint(Sketcher.Constraint("DistanceX", -1, 1, 0, 2, Q("62.890241 mm")))
sketch15.addConstraint(Sketcher.Constraint("DistanceY", -1, 1, 0, 2, Q("35.636172 mm")))
pad5 = body.newObject("PartDesign::Pad", "Pad004")
pad5.Profile = sketch15
pad5.Length = 4
pad5.Reversed = True

# Sketch on XY plane
sketch16 = body.newObject("Sketcher::SketchObject", "Sketch015")
sketch16.AttachmentSupport = (doc.getObject("XY_Plane"), [""])
sketch16.MapMode = "FlatFace"
sketch16.AttachmentOffset = App.Placement(App.Vector(0, 0, 10), App.Rotation())
add_polygon(sketch16, [(41.4, 27.8), (41.4, 23.4), (55.4, 23.4), (55.4, 27.8)])  # lines 0-3
sketch16.addConstraint(Sketcher.Constraint("Vertical", 0))
sketch16.addConstraint(Sketcher.Constraint("Horizontal", 1))
sketch16.addConstraint(Sketcher.Constraint("Vertical", 2))
sketch16.addConstraint(Sketcher.Constraint("Horizontal", 3))
sketch16.addConstraint(Sketcher.Constraint("DistanceX", 1, 1, 1, 2, Q("14 mm")))
sketch16.addConstraint(Sketcher.Constraint("DistanceY", 0, 2, 0, 1, Q("4.4 mm")))
sketch16.addConstraint(Sketcher.Constraint("DistanceX", -1, 1, 0, 2, Q("41.428849 mm")))
sketch16.addConstraint(Sketcher.Constraint("DistanceY", -1, 1, 0, 2, Q("23.353175 mm")))
pocket11 = body.newObject("PartDesign::Pocket", "Pocket010")
pocket11.Profile = sketch16
pocket11.Length = 6
doc.recompute()

chamfer = body.newObject("PartDesign::Chamfer", "Chamfer")
chamfer.Base = (pocket11, edges_at(pocket11, [
    (12.014, 5, 5),
    (55.429, 23.353, 7),
    (55.429, 27.753, 7),
    (41.429, 27.753, 7),
    (41.429, 23.353, 7),
]))
chamfer.Size = 1
doc.recompute()

chamfer2 = body.newObject("PartDesign::Chamfer", "Chamfer001")
chamfer2.Base = (chamfer, edges_at(chamfer, [
    (62.89, 38.128, 4),
    (61.333, 35.636, 4),
    (59.776, 38.128, 4),
    (61.333, 40.619, 4),
]))
chamfer2.Size = 0.6
doc.recompute()

chamfer3 = body.newObject("PartDesign::Chamfer", "Chamfer002")
chamfer3.Base = (chamfer2, edges_at(chamfer2, [
    (38.732, 43.693, 4),
    (36.632, 41.193, 4),
    (38.732, 38.693, 4),
    (40.832, 41.193, 4),
]))
chamfer3.Size = 0.6

# Sketch on XY plane
sketch17 = body.newObject("Sketcher::SketchObject", "Sketch016")
sketch17.AttachmentSupport = (doc.getObject("XY_Plane"), [""])
sketch17.MapMode = "FlatFace"
sketch17.AttachmentOffset = App.Placement(App.Vector(0, 0, 4), App.Rotation())
sketch17.addGeometry(Part.Circle(App.Vector(17.9, 26.9, 0), App.Vector(0, 0, 1), 1.6), False)
sketch17.addConstraint(Sketcher.Constraint("Diameter", 0, Q("3.2 mm")))
sketch17.addConstraint(Sketcher.Constraint("DistanceX", -1, 1, 0, 3, Q("17.894129 mm")))
sketch17.addConstraint(Sketcher.Constraint("DistanceY", -1, 1, 0, 3, Q("26.946261 mm")))
pocket12 = body.newObject("PartDesign::Pocket", "Pocket011")
pocket12.Profile = sketch17
pocket12.Type = "ThroughAll"
pocket12.Midplane = True

# Sketch on XY plane
sketch18 = body.newObject("Sketcher::SketchObject", "Sketch017")
sketch18.AttachmentSupport = (doc.getObject("XY_Plane"), [""])
sketch18.MapMode = "FlatFace"
add_polygon(sketch18, [(23.1, 58.3), (12.1, 58.3), (12.1, 60), (23.8, 60), (24.4, 59.4), (24.4, 57.7), (23.7, 57.7)])  # lines 0-6
sketch18.addConstraint(Sketcher.Constraint("Horizontal", 0))
sketch18.addConstraint(Sketcher.Constraint("Vertical", 1))
sketch18.addConstraint(Sketcher.Constraint("Horizontal", 2))
sketch18.addConstraint(Sketcher.Constraint("Vertical", 4))
sketch18.addConstraint(Sketcher.Constraint("Angle", 3, Q("-45 deg")))
sketch18.addConstraint(Sketcher.Constraint("DistanceX", 0, 2, 0, 1, Q("10.9897 mm")))
sketch18.addConstraint(Sketcher.Constraint("DistanceX", 2, 1, 2, 2, Q("11.701602 mm")))
sketch18.addConstraint(Sketcher.Constraint("DistanceY", 1, 1, 1, 2, Q("1.640733 mm")))
sketch18.addConstraint(Sketcher.Constraint("DistanceY", 4, 2, 4, 1, Q("1.690136 mm")))
sketch18.addConstraint(Sketcher.Constraint("DistanceX", -1, 1, 0, 2, Q("12.071959 mm")))
sketch18.addConstraint(Sketcher.Constraint("DistanceY", -1, 1, 1, 2, Q("59.974709 mm")))
sketch18.addConstraint(Sketcher.Constraint("DistanceY", -1, 1, 4, 2, Q("57.663261 mm")))
sketch18.addConstraint(Sketcher.Constraint("DistanceX", 0, 2, 5, 2, Q("11.660168 mm")))
sketch18.addConstraint(Sketcher.Constraint("Distance", 6, Q("0.948302 mm")))
pocket13 = body.newObject("PartDesign::Pocket", "Pocket012")
pocket13.Profile = sketch18
pocket13.Length = 4
pocket13.Reversed = True

# Sketch on XY plane
sketch19 = body.newObject("Sketcher::SketchObject", "Sketch018")
sketch19.AttachmentSupport = (doc.getObject("XY_Plane"), [""])
sketch19.MapMode = "FlatFace"
add_polygon(sketch19, [(71.3, 60), (73.7, 60), (73.7, 54.1), (75.4, 52.4), (78, 52.4), (78, 51.3), (74.4, 51.3), (71.3, 54.4)])  # lines 0-7
sketch19.addConstraint(Sketcher.Constraint("Horizontal", 0))
sketch19.addConstraint(Sketcher.Constraint("Vertical", 1))
sketch19.addConstraint(Sketcher.Constraint("Horizontal", 3))
sketch19.addConstraint(Sketcher.Constraint("Horizontal", 5))
sketch19.addConstraint(Sketcher.Constraint("Vertical", 7))
sketch19.addConstraint(Sketcher.Constraint("Parallel", 2, 6))
sketch19.addConstraint(Sketcher.Constraint("Angle", 2, Q("-45 deg")))
sketch19.addConstraint(Sketcher.Constraint("DistanceX", 0, 1, 0, 2, Q("2.4 mm")))
sketch19.addConstraint(Sketcher.Constraint("Distance", 2, Q("2.4 mm")))
sketch19.addConstraint(Sketcher.Constraint("DistanceX", 5, 2, 5, 1, Q("3.599811 mm")))
sketch19.addConstraint(Sketcher.Constraint("DistanceY", 7, 1, 7, 2, Q("5.599811 mm")))
sketch19.addConstraint(Sketcher.Constraint("DistanceY", -1, 1, 4, 2, Q("51.262301 mm")))
sketch19.addConstraint(Sketcher.Constraint("DistanceY", 2, 2, 0, 2, Q("7.621599 mm")))
sketch19.addConstraint(Sketcher.Constraint("DistanceX", 4, 2, 3, 2, Q("0.000102 mm")))
sketch19.addConstraint(Sketcher.Constraint("Distance", 4, Q("1.090809 mm")))
sketch19.addConstraint(Sketcher.Constraint("DistanceX", -1, 1, 0, 2, Q("73.719521 mm")))
pocket14 = body.newObject("PartDesign::Pocket", "Pocket013")
pocket14.Profile = sketch19
pocket14.Length = 4
pocket14.Reversed = True
doc.recompute()

chamfer4 = body.newObject("PartDesign::Chamfer", "Chamfer003")
chamfer4.Base = (pocket14, edges_at(pocket14, [
    (73.152, 13.147, 10),
    (71.492, 21.693, 10),
    (63.13, 23.353, 10),
    (13.709, 21.658, 10),
    (12.014, 12.982, 10),
    (10.139, 56.443, 10),
    (77.417, 8.415, 10),
    (10.139, 8.415, 10),
    (77.417, 56.443, 10),
    (48.429, 27.753, 10),
    (55.429, 25.553, 10),
    (27.916, 23.353, 10),
    (41.429, 25.553, 10),
    (55.929, 23.853, 10),
    (40.929, 23.853, 10),
    (11.514, 5.5, 10),
    (41.929, 27.253, 10),
    (54.929, 27.253, 10),
    (19.494, 26.946, 10),
    (5.873, 43.736, 10),
    (5.436, 33.899, 10),
    (5, 20.228, 10),
    (5.996, 5.996, 10),
    (9.003, 5, 10),
    (73.783, 5.631, 10),
    (76.198, 5, 10),
    (78.978, 5.996, 10),
    (79.975, 8.75, 10),
    (79.002, 11.484, 10),
    (78.03, 32.407, 10),
    (79.003, 53.324, 10),
    (79.975, 56.139, 10),
    (78.978, 58.978, 10),
    (66.614, 59.975, 10),
    (54.93, 59.662, 10),
    (39.505, 59.352, 10),
    (24.084, 59.664, 10),
    (15.383, 59.975, 10),
    (5.996, 58.978, 10),
    (5, 56, 10),
    (5.438, 53.577, 10),
]))
chamfer4.Size = 0.8
doc.recompute()

chamfer5 = body.newObject("PartDesign::Chamfer", "Chamfer004")
chamfer5.Base = (chamfer4, edges_at(chamfer4, [
    (10.139, 56.443, 0),
    (73.152, 9.161, 0),
    (78.029, 20.699, 0),
    (77.417, 8.415, 0),
    (7.8, 12.014, 0),
    (11.307, 11.307, 0),
    (74.091, 12.999, 0),
    (12.072, 57.654, 0),
    (10.974, 54.236, 0),
    (7.875, 53.137, 0),
    (10.139, 8.415, 0),
    (76.53, 28.938, 0),
    (75.03, 21.438, 0),
    (77.417, 56.443, 0),
    (38.732, 43.693, 2.7),
    (36.632, 41.193, 2.7),
    (38.732, 38.693, 2.7),
    (40.832, 41.193, 2.7),
    (61.333, 40.619, 0),
    (62.89, 38.128, 0),
    (61.333, 35.636, 0),
    (59.776, 38.128, 0),
    (9.003, 5, 0),
    (12.014, 8.3, 0),
    (11.514, 5.5, 0),
    (75.851, 59.975, 0),
    (74.568, 53.202, 0),
    (76.724, 52.353, 0),
    (73.72, 57.012, 0),
    (5, 9.503, 0),
    (5.996, 5.996, 0),
    (73.783, 5.631, 0),
    (76.198, 5, 0),
    (78.978, 5.996, 0),
    (79.975, 8.75, 0),
    (79.002, 11.484, 0),
    (79.003, 53.324, 0),
    (79.975, 56.139, 0),
    (78.978, 58.978, 0),
    (9.532, 59.975, 0),
    (5.996, 58.978, 0),
    (5, 56, 0),
    (5.438, 53.577, 0),
]))
chamfer5.Size = 0.4
doc.recompute()

chamfer6 = body.newObject("PartDesign::Chamfer", "Chamfer005")
chamfer6.Base = (chamfer5, edges_at(chamfer5, [
    (8.771, 34.334, 6),
    (11.671, 42.334, 6),
    (11.671, 34.334, 5),
    (8.773, 50.334, 6),
    (11.671, 50.334, 5),
    (8.773, 50.334, 4),
    (11.671, 42.334, 4),
    (8.771, 34.334, 4),
]))
chamfer6.Size = 0.4
doc.recompute()

chamfer7 = body.newObject("PartDesign::Chamfer", "Chamfer006")
chamfer7.Base = (chamfer6, edges_at(chamfer6, [
    (24.395, 56.63, 6),
    (24.96, 53.341, 6),
    (39.504, 52.775, 6),
    (54.048, 53.341, 6),
    (54.614, 56.628, 6),
    (54.614, 56.628, 4),
    (54.048, 53.341, 4),
    (39.504, 52.775, 4),
    (24.96, 53.341, 4),
    (24.395, 56.63, 4),
]))
chamfer7.Size = 0.4
doc.recompute()

chamfer8 = body.newObject("PartDesign::Chamfer", "Chamfer007")
chamfer8.Base = (chamfer7, edges_at(chamfer7, [
    (73.348, 43.459, 5),
    (69.348, 45.959, 5),
    (65.348, 43.459, 5),
    (69.348, 40.959, 5),
]))
chamfer8.Size = 0.4

doc.recompute()
